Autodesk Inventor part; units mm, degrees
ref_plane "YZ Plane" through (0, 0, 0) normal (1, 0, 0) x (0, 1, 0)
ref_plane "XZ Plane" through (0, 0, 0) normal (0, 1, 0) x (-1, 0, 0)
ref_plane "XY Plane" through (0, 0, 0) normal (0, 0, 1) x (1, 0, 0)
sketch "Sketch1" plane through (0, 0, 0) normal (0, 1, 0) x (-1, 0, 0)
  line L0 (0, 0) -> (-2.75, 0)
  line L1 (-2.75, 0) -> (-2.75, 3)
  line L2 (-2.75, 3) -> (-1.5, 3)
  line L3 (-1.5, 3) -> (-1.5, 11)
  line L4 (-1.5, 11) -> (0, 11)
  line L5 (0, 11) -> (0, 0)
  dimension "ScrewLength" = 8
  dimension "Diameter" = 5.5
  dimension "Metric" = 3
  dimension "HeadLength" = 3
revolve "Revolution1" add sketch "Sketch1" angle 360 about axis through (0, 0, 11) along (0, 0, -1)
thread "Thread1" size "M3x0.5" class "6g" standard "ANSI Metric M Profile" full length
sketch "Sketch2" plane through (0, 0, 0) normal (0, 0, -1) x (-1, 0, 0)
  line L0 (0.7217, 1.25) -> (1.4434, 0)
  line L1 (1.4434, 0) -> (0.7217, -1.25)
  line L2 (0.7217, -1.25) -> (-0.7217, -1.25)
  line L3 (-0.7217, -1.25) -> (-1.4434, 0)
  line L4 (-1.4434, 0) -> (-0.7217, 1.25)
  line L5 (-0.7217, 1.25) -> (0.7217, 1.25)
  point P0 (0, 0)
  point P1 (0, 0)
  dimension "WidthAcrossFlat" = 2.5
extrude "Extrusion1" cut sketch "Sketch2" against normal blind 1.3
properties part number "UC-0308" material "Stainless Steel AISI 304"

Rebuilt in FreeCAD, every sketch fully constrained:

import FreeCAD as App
import Part
import Sketcher
Q = App.Units.Quantity


def add_polygon(sketch, points):
    """Adds a closed chain of lines whose ends are joined by coincident constraints."""
    first, n = sketch.GeometryCount, len(points)
    for a, b in zip(points, points[1:] + points[:1]):
        sketch.addGeometry(Part.LineSegment(App.Vector(*a, 0), App.Vector(*b, 0)), False)
    for i in range(n):
        sketch.addConstraint(Sketcher.Constraint("Coincident", first + i, 2, first + (i + 1) % n, 1))

doc = App.newDocument("Part")
body = doc.addObject("PartDesign::Body", "Body")

# Sketch on XZ plane
sketch1 = doc.addObject("Sketcher::SketchObject", "Sketch")
body.addObject(sketch1)
sketch1.AttachmentSupport = (doc.XZ_Plane, [""])
sketch1.MapMode = "FlatFace"
add_polygon(sketch1, [(2.75, 0), (0, 0), (0, 11), (1.5, 11), (1.5, 3), (2.75, 3)])  # lines 0-5
sketch1.addConstraint([
    Sketcher.Constraint("Horizontal", 0),
    Sketcher.Constraint("Vertical", 1),
    Sketcher.Constraint("Horizontal", 2),
    Sketcher.Constraint("Vertical", 3),
    Sketcher.Constraint("Horizontal", 4),
    Sketcher.Constraint("Vertical", 5),
    Sketcher.Constraint("Coincident", 0, 2, -1, 1),
    Sketcher.Constraint("DistanceY", 3, 2, 3, 1, 8.0),
    Sketcher.Constraint("DistanceY", 5, 2, 5, 1, 3.0),
    Sketcher.Constraint("DistanceX", 2, 1, 2, 2, 1.5),
    Sketcher.Constraint("DistanceX", 0, 2, 0, 1, 2.75),
])
revolution = doc.addObject("PartDesign::Revolution", "Revolution")
body.addObject(revolution)
revolution.Profile = sketch1
revolution.ReferenceAxis = (sketch1, ["V_Axis"])
revolution.Angle = 360

# Sketch on XY plane
sketch2 = doc.addObject("Sketcher::SketchObject", "Sketch001")
body.addObject(sketch2)
sketch2.AttachmentSupport = (doc.XY_Plane, [""])
sketch2.MapMode = "FlatFace"
add_polygon(sketch2, [(-1.4434, 0), (-0.7217, 1.25), (0.7217, 1.25), (1.4434, 0), (0.7217, -1.25), (-0.7217, -1.25)])  # lines 0-5
sketch2.addConstraint([
    Sketcher.Constraint("Horizontal", 1),
    Sketcher.Constraint("Horizontal", 4),
    Sketcher.Constraint("Symmetric", 0, 2, 3, 2, -1, 1),
    Sketcher.Constraint("Symmetric", 2, 2, 5, 2, -1, 1),
    Sketcher.Constraint("PointOnObject", 2, 2, -1),
    Sketcher.Constraint("Parallel", 2, 5),
    Sketcher.Constraint("Vertical", 1, 2, 3, 2),
    Sketcher.Constraint("DistanceY", 3, 2, 1, 2, 2.5),
    Sketcher.Constraint("Angle", 0, Q("59.9996 deg")),
    Sketcher.Constraint("DistanceX", 1, 1, 1, 2, 1.4434),
])
pocket1 = doc.addObject("PartDesign::Pocket", "Pocket")
body.addObject(pocket1)
pocket1.Profile = sketch2
pocket1.Length = 1.3
pocket1.Reversed = True

doc.recompute()
